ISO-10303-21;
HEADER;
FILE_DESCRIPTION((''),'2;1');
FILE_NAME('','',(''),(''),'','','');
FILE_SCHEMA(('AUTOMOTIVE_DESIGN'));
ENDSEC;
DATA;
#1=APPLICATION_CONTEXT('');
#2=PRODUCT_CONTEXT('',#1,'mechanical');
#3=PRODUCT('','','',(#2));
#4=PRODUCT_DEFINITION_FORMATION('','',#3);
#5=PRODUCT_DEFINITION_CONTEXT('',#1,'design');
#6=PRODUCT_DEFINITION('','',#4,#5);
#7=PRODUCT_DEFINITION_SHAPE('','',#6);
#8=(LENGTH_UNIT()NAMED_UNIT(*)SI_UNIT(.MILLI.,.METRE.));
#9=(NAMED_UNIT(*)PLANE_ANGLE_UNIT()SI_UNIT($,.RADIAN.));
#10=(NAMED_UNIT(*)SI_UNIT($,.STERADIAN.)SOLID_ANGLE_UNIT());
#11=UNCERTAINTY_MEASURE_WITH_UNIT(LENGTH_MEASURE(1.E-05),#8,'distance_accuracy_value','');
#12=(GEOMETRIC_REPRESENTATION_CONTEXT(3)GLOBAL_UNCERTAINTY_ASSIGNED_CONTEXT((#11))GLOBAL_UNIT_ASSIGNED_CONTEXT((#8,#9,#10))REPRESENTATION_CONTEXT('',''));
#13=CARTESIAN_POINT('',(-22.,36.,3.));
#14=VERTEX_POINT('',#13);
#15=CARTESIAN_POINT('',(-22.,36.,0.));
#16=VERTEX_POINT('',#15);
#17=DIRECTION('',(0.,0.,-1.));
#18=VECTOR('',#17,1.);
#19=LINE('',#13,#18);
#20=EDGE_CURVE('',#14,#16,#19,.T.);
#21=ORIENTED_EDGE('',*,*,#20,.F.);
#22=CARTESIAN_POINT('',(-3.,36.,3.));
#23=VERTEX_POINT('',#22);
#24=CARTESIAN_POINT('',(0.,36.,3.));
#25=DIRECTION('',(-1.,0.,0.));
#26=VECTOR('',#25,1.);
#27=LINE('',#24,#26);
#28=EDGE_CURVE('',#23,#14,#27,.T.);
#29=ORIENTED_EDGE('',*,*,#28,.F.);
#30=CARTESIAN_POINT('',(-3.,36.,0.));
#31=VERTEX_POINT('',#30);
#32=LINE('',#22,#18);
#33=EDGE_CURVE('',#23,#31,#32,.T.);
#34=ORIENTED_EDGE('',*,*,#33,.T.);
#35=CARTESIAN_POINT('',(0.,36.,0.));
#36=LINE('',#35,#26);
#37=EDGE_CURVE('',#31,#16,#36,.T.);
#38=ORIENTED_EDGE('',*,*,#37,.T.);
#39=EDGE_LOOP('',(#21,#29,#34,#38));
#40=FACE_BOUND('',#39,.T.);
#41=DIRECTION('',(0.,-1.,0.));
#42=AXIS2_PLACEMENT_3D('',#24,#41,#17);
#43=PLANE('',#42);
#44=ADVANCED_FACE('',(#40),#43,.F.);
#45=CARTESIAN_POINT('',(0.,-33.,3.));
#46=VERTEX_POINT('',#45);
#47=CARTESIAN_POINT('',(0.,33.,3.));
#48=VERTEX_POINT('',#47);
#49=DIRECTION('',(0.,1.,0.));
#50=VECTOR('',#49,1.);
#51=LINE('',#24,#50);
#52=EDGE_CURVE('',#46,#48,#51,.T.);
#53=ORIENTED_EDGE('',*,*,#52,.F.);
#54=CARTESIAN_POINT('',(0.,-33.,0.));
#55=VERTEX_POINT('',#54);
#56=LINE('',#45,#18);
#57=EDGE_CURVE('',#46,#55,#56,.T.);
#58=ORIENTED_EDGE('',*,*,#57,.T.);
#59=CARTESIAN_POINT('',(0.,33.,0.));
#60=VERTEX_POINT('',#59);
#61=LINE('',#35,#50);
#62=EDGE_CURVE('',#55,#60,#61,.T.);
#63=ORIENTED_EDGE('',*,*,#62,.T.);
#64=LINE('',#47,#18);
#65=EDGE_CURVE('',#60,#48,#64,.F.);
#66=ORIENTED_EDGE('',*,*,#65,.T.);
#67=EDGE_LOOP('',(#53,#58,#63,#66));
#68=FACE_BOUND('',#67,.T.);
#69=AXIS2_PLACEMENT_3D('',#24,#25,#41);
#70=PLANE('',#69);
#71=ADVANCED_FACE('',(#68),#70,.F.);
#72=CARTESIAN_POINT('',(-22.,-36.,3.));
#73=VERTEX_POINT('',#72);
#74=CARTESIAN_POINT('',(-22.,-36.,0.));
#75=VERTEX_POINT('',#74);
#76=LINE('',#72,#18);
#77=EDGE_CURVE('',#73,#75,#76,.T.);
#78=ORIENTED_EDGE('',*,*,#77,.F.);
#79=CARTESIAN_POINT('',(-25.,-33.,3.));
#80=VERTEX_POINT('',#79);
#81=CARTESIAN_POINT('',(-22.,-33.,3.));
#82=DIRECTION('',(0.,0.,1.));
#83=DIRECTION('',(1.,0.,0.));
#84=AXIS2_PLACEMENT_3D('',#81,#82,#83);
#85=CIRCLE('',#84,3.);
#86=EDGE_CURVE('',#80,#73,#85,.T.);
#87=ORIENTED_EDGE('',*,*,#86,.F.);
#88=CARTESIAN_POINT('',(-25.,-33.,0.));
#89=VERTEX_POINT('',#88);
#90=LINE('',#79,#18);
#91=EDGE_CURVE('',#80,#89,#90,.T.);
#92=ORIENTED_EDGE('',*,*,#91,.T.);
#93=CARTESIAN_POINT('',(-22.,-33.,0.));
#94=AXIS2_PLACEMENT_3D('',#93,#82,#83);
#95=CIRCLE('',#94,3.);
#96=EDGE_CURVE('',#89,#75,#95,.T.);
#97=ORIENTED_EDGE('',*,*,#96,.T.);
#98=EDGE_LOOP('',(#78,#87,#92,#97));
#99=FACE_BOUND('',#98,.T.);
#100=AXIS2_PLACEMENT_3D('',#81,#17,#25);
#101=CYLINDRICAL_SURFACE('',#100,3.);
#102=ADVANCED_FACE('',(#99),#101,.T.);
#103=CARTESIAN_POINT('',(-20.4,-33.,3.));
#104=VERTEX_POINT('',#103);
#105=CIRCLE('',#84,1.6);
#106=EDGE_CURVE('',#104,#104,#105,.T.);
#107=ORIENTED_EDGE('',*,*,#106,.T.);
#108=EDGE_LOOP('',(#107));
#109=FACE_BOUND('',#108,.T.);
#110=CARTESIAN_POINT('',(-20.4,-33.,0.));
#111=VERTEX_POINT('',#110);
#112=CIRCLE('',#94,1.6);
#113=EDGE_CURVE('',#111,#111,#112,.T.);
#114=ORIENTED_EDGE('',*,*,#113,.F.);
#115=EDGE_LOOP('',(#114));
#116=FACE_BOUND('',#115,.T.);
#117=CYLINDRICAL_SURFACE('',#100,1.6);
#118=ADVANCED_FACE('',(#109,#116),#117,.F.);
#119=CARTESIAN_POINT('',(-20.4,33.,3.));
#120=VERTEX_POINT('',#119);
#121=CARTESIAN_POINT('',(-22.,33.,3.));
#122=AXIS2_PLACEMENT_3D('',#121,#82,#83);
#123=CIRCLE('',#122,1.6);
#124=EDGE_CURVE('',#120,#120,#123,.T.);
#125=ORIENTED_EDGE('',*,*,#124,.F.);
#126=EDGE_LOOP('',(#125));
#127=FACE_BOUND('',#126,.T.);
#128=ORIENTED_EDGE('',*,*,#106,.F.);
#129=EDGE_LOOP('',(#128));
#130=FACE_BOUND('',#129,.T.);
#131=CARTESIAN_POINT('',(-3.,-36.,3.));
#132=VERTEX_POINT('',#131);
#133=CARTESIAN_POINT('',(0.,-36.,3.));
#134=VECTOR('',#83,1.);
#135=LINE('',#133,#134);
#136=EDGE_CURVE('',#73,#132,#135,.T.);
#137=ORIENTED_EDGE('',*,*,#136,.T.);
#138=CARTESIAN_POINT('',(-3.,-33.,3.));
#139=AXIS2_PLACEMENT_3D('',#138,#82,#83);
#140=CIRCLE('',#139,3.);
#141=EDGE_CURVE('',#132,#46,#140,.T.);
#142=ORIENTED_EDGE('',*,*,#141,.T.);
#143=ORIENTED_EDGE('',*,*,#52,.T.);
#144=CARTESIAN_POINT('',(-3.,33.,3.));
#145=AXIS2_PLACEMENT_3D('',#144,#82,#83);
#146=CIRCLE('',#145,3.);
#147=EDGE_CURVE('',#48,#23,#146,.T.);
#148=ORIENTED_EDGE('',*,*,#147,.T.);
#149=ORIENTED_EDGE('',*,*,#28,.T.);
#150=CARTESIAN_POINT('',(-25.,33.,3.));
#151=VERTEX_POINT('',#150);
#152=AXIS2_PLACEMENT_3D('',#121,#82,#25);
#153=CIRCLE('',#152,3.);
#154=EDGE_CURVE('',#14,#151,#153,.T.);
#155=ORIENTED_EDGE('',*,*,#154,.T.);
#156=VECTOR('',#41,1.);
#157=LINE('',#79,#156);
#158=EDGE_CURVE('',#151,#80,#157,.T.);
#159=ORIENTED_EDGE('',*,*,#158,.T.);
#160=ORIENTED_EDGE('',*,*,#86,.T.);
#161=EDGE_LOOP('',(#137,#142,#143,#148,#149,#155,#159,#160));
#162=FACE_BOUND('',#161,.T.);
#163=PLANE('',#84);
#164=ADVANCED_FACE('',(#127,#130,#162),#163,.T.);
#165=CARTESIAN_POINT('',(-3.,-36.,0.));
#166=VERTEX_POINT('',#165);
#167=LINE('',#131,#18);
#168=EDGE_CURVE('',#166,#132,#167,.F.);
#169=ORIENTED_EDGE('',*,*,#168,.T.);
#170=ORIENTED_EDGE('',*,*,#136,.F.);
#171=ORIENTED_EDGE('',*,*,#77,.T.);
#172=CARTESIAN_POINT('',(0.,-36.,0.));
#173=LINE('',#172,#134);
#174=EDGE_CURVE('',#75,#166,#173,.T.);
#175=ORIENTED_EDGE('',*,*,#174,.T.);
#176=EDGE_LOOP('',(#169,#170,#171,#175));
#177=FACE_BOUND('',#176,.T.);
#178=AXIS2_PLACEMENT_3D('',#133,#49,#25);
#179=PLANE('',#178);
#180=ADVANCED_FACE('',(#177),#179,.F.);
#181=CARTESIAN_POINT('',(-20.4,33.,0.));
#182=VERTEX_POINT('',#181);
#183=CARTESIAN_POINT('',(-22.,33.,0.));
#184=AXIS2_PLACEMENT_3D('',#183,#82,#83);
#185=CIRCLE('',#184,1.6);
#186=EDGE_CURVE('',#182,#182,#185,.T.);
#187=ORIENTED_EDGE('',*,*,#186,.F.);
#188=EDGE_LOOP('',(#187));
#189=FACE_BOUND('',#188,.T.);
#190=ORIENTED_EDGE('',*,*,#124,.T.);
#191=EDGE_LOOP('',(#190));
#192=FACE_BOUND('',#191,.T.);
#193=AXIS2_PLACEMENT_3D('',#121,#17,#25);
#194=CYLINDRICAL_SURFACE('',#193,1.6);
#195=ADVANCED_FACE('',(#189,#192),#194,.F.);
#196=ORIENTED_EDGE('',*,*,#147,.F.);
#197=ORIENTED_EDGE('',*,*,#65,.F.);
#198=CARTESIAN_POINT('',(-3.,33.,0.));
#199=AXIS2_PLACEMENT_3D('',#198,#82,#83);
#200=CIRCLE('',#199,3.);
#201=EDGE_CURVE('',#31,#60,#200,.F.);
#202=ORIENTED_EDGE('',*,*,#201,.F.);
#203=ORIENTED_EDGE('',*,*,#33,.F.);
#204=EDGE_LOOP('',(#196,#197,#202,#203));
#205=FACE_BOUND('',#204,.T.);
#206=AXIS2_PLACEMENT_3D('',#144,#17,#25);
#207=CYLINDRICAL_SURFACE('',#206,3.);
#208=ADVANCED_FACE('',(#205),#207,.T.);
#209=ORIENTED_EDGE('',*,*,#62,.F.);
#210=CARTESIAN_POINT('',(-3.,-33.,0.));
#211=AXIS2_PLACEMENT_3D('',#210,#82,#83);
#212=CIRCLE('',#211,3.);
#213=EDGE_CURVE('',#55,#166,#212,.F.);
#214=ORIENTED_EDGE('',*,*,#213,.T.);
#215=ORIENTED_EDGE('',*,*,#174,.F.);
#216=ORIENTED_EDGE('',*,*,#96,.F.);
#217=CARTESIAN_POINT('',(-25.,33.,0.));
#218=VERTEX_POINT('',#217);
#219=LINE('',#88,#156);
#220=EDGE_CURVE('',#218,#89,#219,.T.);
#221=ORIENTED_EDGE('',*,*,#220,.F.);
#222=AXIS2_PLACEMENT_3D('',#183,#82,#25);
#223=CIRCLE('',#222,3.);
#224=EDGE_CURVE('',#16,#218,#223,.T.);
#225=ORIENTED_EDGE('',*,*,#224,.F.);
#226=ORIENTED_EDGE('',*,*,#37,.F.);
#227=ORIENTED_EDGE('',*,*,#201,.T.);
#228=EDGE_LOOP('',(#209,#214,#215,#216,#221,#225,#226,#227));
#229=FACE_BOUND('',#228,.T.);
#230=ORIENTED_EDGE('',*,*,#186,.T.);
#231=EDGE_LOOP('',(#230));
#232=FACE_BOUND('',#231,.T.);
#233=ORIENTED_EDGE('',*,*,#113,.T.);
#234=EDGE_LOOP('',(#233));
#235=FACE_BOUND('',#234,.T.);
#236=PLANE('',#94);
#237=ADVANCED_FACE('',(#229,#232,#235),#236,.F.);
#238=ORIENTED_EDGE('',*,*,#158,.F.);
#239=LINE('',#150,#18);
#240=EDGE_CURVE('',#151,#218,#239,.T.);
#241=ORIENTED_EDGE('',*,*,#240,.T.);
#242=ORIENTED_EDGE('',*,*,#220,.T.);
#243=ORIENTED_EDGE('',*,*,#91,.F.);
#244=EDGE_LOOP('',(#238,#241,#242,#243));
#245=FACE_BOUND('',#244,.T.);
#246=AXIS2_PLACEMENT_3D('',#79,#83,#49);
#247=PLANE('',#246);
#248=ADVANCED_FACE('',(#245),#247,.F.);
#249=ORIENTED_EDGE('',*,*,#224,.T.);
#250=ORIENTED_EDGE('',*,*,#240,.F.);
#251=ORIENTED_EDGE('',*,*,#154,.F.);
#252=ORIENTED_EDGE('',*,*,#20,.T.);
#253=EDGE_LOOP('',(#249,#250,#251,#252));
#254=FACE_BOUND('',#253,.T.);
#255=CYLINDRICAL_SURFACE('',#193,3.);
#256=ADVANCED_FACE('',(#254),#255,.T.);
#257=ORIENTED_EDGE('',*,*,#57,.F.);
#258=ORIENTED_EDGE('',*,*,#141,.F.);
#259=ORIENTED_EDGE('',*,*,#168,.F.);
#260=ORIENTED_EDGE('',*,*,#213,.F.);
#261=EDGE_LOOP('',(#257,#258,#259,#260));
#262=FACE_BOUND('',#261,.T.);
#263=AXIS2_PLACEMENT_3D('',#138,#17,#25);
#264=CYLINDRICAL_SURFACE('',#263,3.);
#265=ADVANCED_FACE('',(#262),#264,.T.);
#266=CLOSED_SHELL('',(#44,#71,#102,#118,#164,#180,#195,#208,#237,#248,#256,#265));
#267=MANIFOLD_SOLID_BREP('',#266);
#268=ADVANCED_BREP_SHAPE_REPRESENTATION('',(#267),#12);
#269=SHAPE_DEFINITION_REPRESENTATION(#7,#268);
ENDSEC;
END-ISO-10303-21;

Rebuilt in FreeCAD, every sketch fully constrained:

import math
import FreeCAD as App
import Part
import Sketcher
Q = App.Units.Quantity


def edges_at(feature, points):
    """Names of the edges that pass closest to the given points."""
    edges = feature.Shape.Edges
    near = lambda p: min(range(len(edges)), key=lambda i: edges[i].distToShape(Part.Vertex(*p))[0])
    return sorted({f"Edge{near(p) + 1}" for p in points})

doc = App.newDocument("Part")
body = doc.addObject("PartDesign::Body", "Body")

# Sketch on XY plane
sketch1 = body.newObject("Sketcher::SketchObject", "Sketch")
sketch1.AttachmentSupport = (doc.getObject("XY_Plane"), [""])
sketch1.MapMode = "FlatFace"
sketch1.addGeometry(Part.LineSegment(App.Vector(0, -36, 0), App.Vector(0, 36, 0)), False)
sketch1.addGeometry(Part.LineSegment(App.Vector(0, 36, 0), App.Vector(-22, 36, 0)), False)
sketch1.addGeometry(Part.ArcOfCircle(Part.Circle(App.Vector(-22, 33, 0), App.Vector(0, 0, 1), 3), math.radians(90), math.radians(180)), False)
sketch1.addGeometry(Part.LineSegment(App.Vector(-25, 33, 0), App.Vector(-25, -33, 0)), False)
sketch1.addGeometry(Part.ArcOfCircle(Part.Circle(App.Vector(-22, -33, 0), App.Vector(0, 0, 1), 3), math.radians(180), math.radians(270)), False)
sketch1.addGeometry(Part.LineSegment(App.Vector(-22, -36, 0), App.Vector(0, -36, 0)), False)
sketch1.addGeometry(Part.Circle(App.Vector(-22, -33, 0), App.Vector(0, 0, 1), 1.6), False)
sketch1.addGeometry(Part.Circle(App.Vector(-22, 33, 0), App.Vector(0, 0, 1), 1.6), False)
sketch1.addConstraint(Sketcher.Constraint("Coincident", 0, 2, 1, 1))
sketch1.addConstraint(Sketcher.Constraint("Tangent", 1, 2, 2, 1))
sketch1.addConstraint(Sketcher.Constraint("Tangent", 2, 2, 3, 1))
sketch1.addConstraint(Sketcher.Constraint("Tangent", 3, 2, 4, 1))
sketch1.addConstraint(Sketcher.Constraint("Tangent", 4, 2, 5, 1))
sketch1.addConstraint(Sketcher.Constraint("Coincident", 5, 2, 0, 1))
sketch1.addConstraint(Sketcher.Constraint("Vertical", 0))
sketch1.addConstraint(Sketcher.Constraint("Horizontal", 1))
sketch1.addConstraint(Sketcher.Constraint("Vertical", 3))
sketch1.addConstraint(Sketcher.Constraint("Horizontal", 5))
sketch1.addConstraint(Sketcher.Constraint("Coincident", 6, 3, 4, 3))
sketch1.addConstraint(Sketcher.Constraint("Coincident", 7, 3, 2, 3))
sketch1.addConstraint(Sketcher.Constraint("Equal", 2, 4))
sketch1.addConstraint(Sketcher.Constraint("Equal", 6, 7))
sketch1.addConstraint(Sketcher.Constraint("Symmetric", 0, 2, 5, 2, -1, 1))
sketch1.addConstraint(Sketcher.Constraint("Radius", 2, Q("3 mm")))
sketch1.addConstraint(Sketcher.Constraint("Diameter", 6, Q("3.2 mm")))
sketch1.addConstraint(Sketcher.Constraint("DistanceX", 1, 2, 1, 1, Q("22 mm")))
sketch1.addConstraint(Sketcher.Constraint("DistanceY", 0, 1, 0, 2, Q("72 mm")))
pad1 = body.newObject("PartDesign::Pad", "Pad")
pad1.Profile = sketch1
pad1.Length = 3
doc.recompute()

fillet = body.newObject("PartDesign::Fillet", "Fillet")
fillet.Base = (pad1, edges_at(pad1, [(0, 36, 1.5), (0, -36, 1.5)]))
fillet.Radius = 3

doc.recompute()
